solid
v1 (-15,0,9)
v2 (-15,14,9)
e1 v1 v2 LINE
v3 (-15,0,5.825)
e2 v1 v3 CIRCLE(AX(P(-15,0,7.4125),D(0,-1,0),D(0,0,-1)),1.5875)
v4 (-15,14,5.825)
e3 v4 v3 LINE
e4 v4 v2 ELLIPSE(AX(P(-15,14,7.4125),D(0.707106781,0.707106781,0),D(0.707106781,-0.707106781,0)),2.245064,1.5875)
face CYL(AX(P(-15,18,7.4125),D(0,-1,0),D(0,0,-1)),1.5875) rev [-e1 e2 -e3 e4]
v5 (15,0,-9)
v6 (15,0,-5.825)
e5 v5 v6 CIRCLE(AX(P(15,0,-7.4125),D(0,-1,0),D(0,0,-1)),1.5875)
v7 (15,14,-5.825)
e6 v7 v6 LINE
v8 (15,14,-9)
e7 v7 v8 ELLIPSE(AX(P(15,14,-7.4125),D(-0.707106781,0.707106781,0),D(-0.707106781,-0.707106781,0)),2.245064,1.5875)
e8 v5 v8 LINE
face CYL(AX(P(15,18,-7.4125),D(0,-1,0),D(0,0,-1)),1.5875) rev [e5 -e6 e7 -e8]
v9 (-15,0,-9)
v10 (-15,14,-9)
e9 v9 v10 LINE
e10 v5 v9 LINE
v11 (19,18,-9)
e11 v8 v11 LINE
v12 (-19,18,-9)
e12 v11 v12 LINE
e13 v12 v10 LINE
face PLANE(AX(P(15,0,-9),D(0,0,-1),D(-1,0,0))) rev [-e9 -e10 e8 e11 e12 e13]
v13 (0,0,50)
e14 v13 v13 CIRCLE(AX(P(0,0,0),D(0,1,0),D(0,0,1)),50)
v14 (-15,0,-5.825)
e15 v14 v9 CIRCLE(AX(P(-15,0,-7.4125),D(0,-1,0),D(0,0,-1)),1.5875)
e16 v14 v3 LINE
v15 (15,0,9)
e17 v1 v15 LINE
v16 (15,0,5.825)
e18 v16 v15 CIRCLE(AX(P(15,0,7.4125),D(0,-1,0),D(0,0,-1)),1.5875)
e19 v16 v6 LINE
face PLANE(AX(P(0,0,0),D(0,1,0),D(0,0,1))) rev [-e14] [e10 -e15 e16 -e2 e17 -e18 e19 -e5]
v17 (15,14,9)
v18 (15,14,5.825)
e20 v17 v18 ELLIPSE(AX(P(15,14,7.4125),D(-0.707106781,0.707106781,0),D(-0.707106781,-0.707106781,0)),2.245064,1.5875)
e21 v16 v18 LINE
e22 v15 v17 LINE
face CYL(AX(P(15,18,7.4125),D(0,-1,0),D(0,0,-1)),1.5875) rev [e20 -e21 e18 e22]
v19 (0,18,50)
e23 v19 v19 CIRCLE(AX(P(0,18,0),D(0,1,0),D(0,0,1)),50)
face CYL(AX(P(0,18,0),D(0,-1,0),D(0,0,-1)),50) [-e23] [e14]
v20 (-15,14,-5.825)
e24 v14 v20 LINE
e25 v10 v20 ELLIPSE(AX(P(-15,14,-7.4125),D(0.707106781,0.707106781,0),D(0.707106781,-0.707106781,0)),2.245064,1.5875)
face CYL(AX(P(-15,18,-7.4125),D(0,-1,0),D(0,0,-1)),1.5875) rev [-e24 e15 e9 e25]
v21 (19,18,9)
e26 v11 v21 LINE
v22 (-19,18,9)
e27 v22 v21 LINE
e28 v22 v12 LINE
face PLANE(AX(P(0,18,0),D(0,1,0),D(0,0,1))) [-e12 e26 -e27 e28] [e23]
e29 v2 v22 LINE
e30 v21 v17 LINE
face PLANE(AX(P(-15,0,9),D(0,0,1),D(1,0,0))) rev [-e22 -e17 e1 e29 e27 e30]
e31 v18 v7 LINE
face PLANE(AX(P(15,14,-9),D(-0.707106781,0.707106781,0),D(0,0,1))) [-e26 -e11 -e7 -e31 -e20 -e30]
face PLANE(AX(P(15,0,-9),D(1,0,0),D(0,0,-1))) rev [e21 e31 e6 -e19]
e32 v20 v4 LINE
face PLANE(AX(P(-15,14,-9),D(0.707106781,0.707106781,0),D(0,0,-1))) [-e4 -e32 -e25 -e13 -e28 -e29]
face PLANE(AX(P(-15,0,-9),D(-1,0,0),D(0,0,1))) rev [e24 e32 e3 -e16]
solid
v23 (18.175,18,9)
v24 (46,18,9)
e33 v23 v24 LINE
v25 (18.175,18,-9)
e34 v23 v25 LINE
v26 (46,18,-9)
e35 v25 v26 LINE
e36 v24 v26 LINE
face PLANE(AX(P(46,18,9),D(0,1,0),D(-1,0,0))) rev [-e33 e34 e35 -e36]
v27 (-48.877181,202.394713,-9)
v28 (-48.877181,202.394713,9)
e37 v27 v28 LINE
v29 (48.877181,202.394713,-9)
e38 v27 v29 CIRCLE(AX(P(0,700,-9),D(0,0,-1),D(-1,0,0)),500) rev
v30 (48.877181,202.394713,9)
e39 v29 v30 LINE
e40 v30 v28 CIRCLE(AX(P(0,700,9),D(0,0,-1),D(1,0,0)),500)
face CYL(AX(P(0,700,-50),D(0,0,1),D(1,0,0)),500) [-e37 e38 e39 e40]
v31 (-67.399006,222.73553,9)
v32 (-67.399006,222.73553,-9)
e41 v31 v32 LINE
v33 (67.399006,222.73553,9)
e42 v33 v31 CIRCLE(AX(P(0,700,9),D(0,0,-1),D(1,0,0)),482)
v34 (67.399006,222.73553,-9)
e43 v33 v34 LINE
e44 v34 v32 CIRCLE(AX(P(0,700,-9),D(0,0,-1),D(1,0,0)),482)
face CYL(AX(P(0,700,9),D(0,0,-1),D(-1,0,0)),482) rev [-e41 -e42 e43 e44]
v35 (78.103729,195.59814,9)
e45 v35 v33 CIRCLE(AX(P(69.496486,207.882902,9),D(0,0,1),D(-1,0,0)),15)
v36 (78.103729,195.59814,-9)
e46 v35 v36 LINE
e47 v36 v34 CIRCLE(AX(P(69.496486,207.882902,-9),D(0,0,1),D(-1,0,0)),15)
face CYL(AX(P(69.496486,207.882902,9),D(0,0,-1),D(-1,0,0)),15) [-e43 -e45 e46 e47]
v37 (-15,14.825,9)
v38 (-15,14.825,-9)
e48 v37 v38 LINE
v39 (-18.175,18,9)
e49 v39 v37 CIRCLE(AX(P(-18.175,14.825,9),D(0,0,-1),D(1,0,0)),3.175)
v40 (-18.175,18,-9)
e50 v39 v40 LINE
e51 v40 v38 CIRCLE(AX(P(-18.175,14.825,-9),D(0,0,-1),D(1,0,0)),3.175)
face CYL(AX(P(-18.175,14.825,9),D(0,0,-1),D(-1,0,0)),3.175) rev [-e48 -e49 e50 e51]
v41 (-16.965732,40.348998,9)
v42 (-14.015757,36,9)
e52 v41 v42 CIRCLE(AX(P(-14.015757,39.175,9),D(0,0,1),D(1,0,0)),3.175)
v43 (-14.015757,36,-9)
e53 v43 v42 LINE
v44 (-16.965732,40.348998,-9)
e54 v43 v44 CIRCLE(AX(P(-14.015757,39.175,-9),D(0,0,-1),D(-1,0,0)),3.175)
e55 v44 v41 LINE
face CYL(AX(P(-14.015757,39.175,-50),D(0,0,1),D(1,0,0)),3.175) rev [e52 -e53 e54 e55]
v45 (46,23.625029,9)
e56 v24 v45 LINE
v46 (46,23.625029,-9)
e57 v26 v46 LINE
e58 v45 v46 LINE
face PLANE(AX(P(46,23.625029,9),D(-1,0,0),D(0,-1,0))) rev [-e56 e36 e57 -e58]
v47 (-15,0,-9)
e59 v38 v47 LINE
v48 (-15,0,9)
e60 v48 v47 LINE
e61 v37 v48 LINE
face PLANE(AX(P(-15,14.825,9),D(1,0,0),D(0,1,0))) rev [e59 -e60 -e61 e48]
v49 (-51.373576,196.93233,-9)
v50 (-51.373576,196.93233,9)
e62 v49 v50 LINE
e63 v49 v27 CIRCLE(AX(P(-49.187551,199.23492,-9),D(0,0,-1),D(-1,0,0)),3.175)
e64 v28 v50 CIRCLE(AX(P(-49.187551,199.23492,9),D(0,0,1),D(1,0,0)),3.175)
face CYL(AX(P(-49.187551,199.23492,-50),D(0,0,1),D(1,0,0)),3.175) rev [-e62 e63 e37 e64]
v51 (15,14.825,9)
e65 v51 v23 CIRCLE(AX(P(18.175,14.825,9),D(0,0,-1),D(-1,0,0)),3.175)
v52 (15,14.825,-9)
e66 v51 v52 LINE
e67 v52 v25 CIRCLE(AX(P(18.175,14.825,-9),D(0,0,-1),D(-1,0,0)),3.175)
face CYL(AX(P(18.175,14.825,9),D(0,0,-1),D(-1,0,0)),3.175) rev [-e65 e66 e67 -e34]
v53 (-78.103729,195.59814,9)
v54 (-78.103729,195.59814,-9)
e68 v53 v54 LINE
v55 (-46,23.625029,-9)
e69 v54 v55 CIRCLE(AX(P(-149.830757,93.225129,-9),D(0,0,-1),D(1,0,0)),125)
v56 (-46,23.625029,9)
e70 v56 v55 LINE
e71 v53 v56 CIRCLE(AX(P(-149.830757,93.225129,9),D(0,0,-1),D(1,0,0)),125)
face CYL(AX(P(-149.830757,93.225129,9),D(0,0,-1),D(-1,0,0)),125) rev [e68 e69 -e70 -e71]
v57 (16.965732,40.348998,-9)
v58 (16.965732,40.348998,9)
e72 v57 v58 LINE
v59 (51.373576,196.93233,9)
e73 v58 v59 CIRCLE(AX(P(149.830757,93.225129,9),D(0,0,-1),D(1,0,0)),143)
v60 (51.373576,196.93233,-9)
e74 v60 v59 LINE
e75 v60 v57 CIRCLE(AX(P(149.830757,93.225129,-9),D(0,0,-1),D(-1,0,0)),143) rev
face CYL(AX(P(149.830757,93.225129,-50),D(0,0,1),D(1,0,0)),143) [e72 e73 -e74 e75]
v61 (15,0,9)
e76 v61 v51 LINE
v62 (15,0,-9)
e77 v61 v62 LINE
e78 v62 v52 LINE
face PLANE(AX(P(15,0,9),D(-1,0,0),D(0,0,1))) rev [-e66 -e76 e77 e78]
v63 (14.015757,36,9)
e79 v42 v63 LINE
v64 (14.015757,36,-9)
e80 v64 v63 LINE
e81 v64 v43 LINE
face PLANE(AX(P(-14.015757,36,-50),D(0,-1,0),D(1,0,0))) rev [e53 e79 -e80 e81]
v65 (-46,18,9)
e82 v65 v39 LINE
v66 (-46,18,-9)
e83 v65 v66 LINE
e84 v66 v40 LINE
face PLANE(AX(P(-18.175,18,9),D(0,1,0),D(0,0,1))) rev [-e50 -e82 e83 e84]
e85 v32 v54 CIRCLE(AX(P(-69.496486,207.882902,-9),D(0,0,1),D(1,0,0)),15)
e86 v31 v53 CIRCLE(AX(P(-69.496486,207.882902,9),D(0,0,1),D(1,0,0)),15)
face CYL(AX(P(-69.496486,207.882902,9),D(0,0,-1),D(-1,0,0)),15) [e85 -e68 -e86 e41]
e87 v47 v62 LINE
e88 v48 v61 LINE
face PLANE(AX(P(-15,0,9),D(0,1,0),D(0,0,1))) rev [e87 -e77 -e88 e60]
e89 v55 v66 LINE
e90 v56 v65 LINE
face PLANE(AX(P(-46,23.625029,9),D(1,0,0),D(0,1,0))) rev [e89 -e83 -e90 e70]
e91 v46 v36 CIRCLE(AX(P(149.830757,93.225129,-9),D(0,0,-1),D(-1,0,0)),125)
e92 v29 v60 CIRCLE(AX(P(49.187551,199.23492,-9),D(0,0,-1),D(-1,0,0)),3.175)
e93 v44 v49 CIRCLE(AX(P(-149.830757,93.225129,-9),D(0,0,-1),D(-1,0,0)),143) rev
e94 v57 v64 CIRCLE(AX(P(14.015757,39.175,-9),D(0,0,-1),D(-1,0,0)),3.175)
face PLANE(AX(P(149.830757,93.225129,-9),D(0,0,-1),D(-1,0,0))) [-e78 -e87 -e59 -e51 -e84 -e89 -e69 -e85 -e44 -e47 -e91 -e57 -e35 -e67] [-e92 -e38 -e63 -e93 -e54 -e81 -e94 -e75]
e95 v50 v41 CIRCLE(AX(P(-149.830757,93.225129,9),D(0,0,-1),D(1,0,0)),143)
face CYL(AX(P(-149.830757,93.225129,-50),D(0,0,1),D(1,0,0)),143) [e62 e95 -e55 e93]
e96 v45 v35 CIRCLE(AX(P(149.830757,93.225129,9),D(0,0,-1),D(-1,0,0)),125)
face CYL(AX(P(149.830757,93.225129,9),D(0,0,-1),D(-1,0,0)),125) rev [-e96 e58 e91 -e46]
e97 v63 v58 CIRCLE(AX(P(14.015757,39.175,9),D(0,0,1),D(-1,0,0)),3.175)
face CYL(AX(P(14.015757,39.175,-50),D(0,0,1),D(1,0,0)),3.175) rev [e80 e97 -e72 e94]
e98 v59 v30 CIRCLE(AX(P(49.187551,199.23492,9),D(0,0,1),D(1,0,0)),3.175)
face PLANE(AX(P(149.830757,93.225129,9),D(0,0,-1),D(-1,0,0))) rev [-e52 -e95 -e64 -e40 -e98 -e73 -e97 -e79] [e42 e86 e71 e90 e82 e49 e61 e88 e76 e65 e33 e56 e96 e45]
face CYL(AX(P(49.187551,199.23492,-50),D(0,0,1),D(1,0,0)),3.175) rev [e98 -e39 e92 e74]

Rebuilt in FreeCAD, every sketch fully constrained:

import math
import FreeCAD as App
import Part
import Sketcher

V = App.Vector


def edges_at(feature, points):
    """Names of the edges that pass closest to the given points."""
    edges = feature.Shape.Edges
    near = lambda p: min(range(len(edges)), key=lambda i: edges[i].distToShape(Part.Vertex(*p))[0])
    return sorted({f"Edge{near(p) + 1}" for p in points})

doc = App.newDocument("Part")
params = doc.addObject("Spreadsheet::Sheet", "Params")
for row, (alias, value) in enumerate([
    ("sketch1_diameter", "100 mm"),
    ("pad1_length", "18 mm"),
    ("sketch2_width", "30 mm"),
    ("sketch2_height", "18 mm"),
    ("chamfer_size", "4 mm"),
    ("pocket2_length", "18 mm"),
    ("sketch4_radius", "125 mm"),
    ("sketch4_radius2", "15 mm"),
    ("sketch4_radius3", "482 mm"),
    ("sketch4_width", "30 mm"),
    ("pad2_length", "18 mm"),
    ("sketch5_radius", "143 mm"),
    ("sketch5_radius2", "500 mm"),
], start=1):
    params.set(f"A{row}", alias)
    params.set(f"B{row}", "=" + value)
    params.setAlias(f"B{row}", alias)

body = doc.addObject("PartDesign::Body", "Body")

# Sketch on XZ plane
sketch1 = body.newObject("Sketcher::SketchObject", "Sketch")
sketch1.AttachmentSupport = (doc.getObject("XZ_Plane"), [""])
sketch1.MapMode = "FlatFace"
sketch1.addGeometry(Part.Circle(V(0, 0, 0), V(0, 0, 1), 50), False)
sketch1.addConstraint(Sketcher.Constraint("Coincident", 0, 3, -1, 1))
sketch1.addConstraint(Sketcher.Constraint("Diameter", 0, 100.0))
sketch1.setExpression("Constraints[1]", "Params.sketch1_diameter")
pad1 = body.newObject("PartDesign::Pad", "Pad")
pad1.Profile = sketch1
pad1.setExpression("Length", "Params.pad1_length")
pad1.Reversed = True

# Sketch on XZ plane
sketch2 = body.newObject("Sketcher::SketchObject", "Sketch001")
sketch2.AttachmentSupport = (doc.getObject("XZ_Plane"), [""])
sketch2.MapMode = "FlatFace"
sketch2.AttachmentOffset = App.Placement(V(0, 0, -18), App.Rotation())
sketch2.addGeometry(Part.LineSegment(V(-15, -9, 0), V(-15, 9, 0)), False)
sketch2.addGeometry(Part.LineSegment(V(-15, 9, 0), V(15, 9, 0)), False)
sketch2.addGeometry(Part.LineSegment(V(15, 9, 0), V(15, -9, 0)), False)
sketch2.addGeometry(Part.LineSegment(V(15, -9, 0), V(-15, -9, 0)), False)
sketch2.addConstraint(Sketcher.Constraint("Coincident", 0, 2, 1, 1))
sketch2.addConstraint(Sketcher.Constraint("Coincident", 1, 2, 2, 1))
sketch2.addConstraint(Sketcher.Constraint("Coincident", 2, 2, 3, 1))
sketch2.addConstraint(Sketcher.Constraint("Coincident", 3, 2, 0, 1))
sketch2.addConstraint(Sketcher.Constraint("Vertical", 0))
sketch2.addConstraint(Sketcher.Constraint("Horizontal", 1))
sketch2.addConstraint(Sketcher.Constraint("Vertical", 2))
sketch2.addConstraint(Sketcher.Constraint("Horizontal", 3))
sketch2.addConstraint(Sketcher.Constraint("Symmetric", 0, 2, 2, 2, -1, 1))
sketch2.addConstraint(Sketcher.Constraint("DistanceX", 1, 1, 1, 2, 30.0))
sketch2.addConstraint(Sketcher.Constraint("DistanceY", 0, 1, 0, 2, 18.0))
sketch2.setExpression("Constraints[9]", "Params.sketch2_width")
sketch2.setExpression("Constraints[10]", "Params.sketch2_height")
pocket1 = body.newObject("PartDesign::Pocket", "Pocket")
pocket1.Profile = sketch2
pocket1.Type = "ThroughAll"
pocket1.Midplane = True
doc.recompute()

chamfer = body.newObject("PartDesign::Chamfer", "Chamfer")
chamfer.Base = (pocket1, edges_at(pocket1, [(15, 18, 0), (-15, 18, 0)]))
chamfer.setExpression("Size", "Params.chamfer_size")

# Sketch on XZ plane
sketch3 = body.newObject("Sketcher::SketchObject", "Sketch002")
sketch3.AttachmentSupport = (doc.getObject("XZ_Plane"), [""])
sketch3.MapMode = "FlatFace"
sketch3.addGeometry(Part.Circle(V(-15, 7.4, 0), V(0, 0, 1), 1.6), False)
sketch3.addGeometry(Part.Circle(V(-15, -7.4, 0), V(0, 0, 1), 1.6), False)
sketch3.addGeometry(Part.Circle(V(15, 7.4, 0), V(0, 0, 1), 1.6), False)
sketch3.addGeometry(Part.Circle(V(15, -7.4, 0), V(0, 0, 1), 1.6), False)
sketch3.addConstraint(Sketcher.Constraint("Equal", 0, 1))
sketch3.addConstraint(Sketcher.Constraint("Equal", 1, 2))
sketch3.addConstraint(Sketcher.Constraint("Equal", 2, 3))
sketch3.addConstraint(Sketcher.Constraint("Symmetric", 1, 3, 2, 3, -1, 1))
sketch3.addConstraint(Sketcher.Constraint("Symmetric", 0, 3, 3, 3, -1, 1))
sketch3.addConstraint(Sketcher.Constraint("Symmetric", 0, 3, 2, 3, -2))
sketch3.addConstraint(Sketcher.Constraint("Diameter", 0, 3.175))
sketch3.addConstraint(Sketcher.Constraint("DistanceX", 0, 3, -1, 1, 15.0))
sketch3.addConstraint(Sketcher.Constraint("DistanceY", 1, 3, 0, 3, 14.825))
pocket2 = body.newObject("PartDesign::Pocket", "Pocket001")
pocket2.Profile = sketch3
pocket2.setExpression("Length", "Params.pocket2_length")
body2 = doc.addObject("PartDesign::Body", "Body001")

# Sketch on XY plane
sketch4 = body2.newObject("Sketcher::SketchObject", "Sketch003")
sketch4.AttachmentSupport = (doc.getObject("XY_Plane001"), [""])
sketch4.MapMode = "FlatFace"
sketch4.addGeometry(Part.LineSegment(V(-15, 14.8, 0), V(-15, 0, 0)), False)
sketch4.addGeometry(Part.LineSegment(V(-15, 0, 0), V(15, 0, 0)), False)
sketch4.addGeometry(Part.LineSegment(V(15, 0, 0), V(15, 14.8, 0)), False)
sketch4.addGeometry(Part.ArcOfCircle(Part.Circle(V(18.2, 14.8, 0), V(0, 0, 1), 3.2), math.radians(90), math.radians(180)), False)
sketch4.addGeometry(Part.LineSegment(V(18.2, 18, 0), V(46, 18, 0)), False)
sketch4.addGeometry(Part.LineSegment(V(46, 18, 0), V(46, 23.6, 0)), False)
sketch4.addGeometry(Part.ArcOfCircle(Part.Circle(V(149.8, 93.2, 0), V(0, 0, 1), 125), math.radians(125), math.radians(214)), False)
sketch4.addGeometry(Part.ArcOfCircle(Part.Circle(V(69.5, 207.9, 0), V(0, 0, 1), 15), math.radians(-55), math.radians(98)), False)
sketch4.addGeometry(Part.ArcOfCircle(Part.Circle(V(0, 700, 0), V(0, 0, 1), 482), math.radians(-98.04), math.radians(-81.96)), False)
sketch4.addGeometry(Part.ArcOfCircle(Part.Circle(V(-69.5, 207.9, 0), V(0, 0, 1), 15), math.radians(82), math.radians(235)), False)
sketch4.addGeometry(Part.ArcOfCircle(Part.Circle(V(-149.8, 93.2, 0), V(0, 0, 1), 125), math.radians(-34), math.radians(55)), False)
sketch4.addGeometry(Part.LineSegment(V(-46, 23.6, 0), V(-46, 18, 0)), False)
sketch4.addGeometry(Part.LineSegment(V(-46, 18, 0), V(-18.2, 18, 0)), False)
sketch4.addGeometry(Part.ArcOfCircle(Part.Circle(V(-18.2, 14.8, 0), V(0, 0, 1), 3.2), math.radians(0), math.radians(90)), False)
sketch4.addConstraint(Sketcher.Constraint("Coincident", 0, 2, 1, 1))
sketch4.addConstraint(Sketcher.Constraint("Coincident", 1, 2, 2, 1))
sketch4.addConstraint(Sketcher.Constraint("Tangent", 2, 2, 3, 2))
sketch4.addConstraint(Sketcher.Constraint("Tangent", 3, 1, 4, 1))
sketch4.addConstraint(Sketcher.Constraint("Coincident", 4, 2, 5, 1))
sketch4.addConstraint(Sketcher.Constraint("Coincident", 5, 2, 6, 2))
sketch4.addConstraint(Sketcher.Constraint("Tangent", 6, 1, 7, 1))
sketch4.addConstraint(Sketcher.Constraint("Tangent", 7, 2, 8, 2))
sketch4.addConstraint(Sketcher.Constraint("Tangent", 8, 1, 9, 1))
sketch4.addConstraint(Sketcher.Constraint("Tangent", 9, 2, 10, 2))
sketch4.addConstraint(Sketcher.Constraint("Coincident", 10, 1, 11, 1))
sketch4.addConstraint(Sketcher.Constraint("Coincident", 11, 2, 12, 1))
sketch4.addConstraint(Sketcher.Constraint("Tangent", 12, 2, 13, 2))
sketch4.addConstraint(Sketcher.Constraint("Tangent", 13, 1, 0, 1))
sketch4.addConstraint(Sketcher.Constraint("Vertical", 0))
sketch4.addConstraint(Sketcher.Constraint("Horizontal", 1))
sketch4.addConstraint(Sketcher.Constraint("Vertical", 2))
sketch4.addConstraint(Sketcher.Constraint("Horizontal", 4))
sketch4.addConstraint(Sketcher.Constraint("Vertical", 5))
sketch4.addConstraint(Sketcher.Constraint("Vertical", 11))
sketch4.addConstraint(Sketcher.Constraint("Horizontal", 12))
sketch4.addConstraint(Sketcher.Constraint("Equal", 7, 9))
sketch4.addConstraint(Sketcher.Constraint("Equal", 6, 10))
sketch4.addConstraint(Sketcher.Constraint("Equal", 3, 13))
sketch4.addConstraint(Sketcher.Constraint("Symmetric", 0, 2, 1, 2, -1, 1))
sketch4.addConstraint(Sketcher.Constraint("Symmetric", 7, 3, 9, 3, -2))
sketch4.addConstraint(Sketcher.Constraint("Symmetric", 5, 2, 10, 1, -2))
sketch4.addConstraint(Sketcher.Constraint("Horizontal", 3, 3, 13, 3))
sketch4.addConstraint(Sketcher.Constraint("Radius", 6, 125.0))
sketch4.addConstraint(Sketcher.Constraint("Radius", 7, 15.0))
sketch4.addConstraint(Sketcher.Constraint("Radius", 8, 482.0))
sketch4.addConstraint(Sketcher.Constraint("DistanceX", 1, 1, 1, 2, 30.0))
sketch4.addConstraint(Sketcher.Constraint("DistanceY", -1, 1, 8, 3, 700.0))
sketch4.addConstraint(Sketcher.Constraint("DistanceY", -1, 1, 3, 1, 18.0))
sketch4.addConstraint(Sketcher.Constraint("DistanceX", -1, 1, 4, 2, 46.0))
sketch4.addConstraint(Sketcher.Constraint("Radius", 3, 3.175))
sketch4.addConstraint(Sketcher.Constraint("DistanceY", 5, 1, 5, 2, 5.625029))
sketch4.addConstraint(Sketcher.Constraint("DistanceY", -1, 1, 7, 3, 207.882902))
sketch4.setExpression("Constraints[28]", "Params.sketch4_radius")
sketch4.setExpression("Constraints[29]", "Params.sketch4_radius2")
sketch4.setExpression("Constraints[30]", "Params.sketch4_radius3")
sketch4.setExpression("Constraints[31]", "Params.sketch4_width")
pad2 = body2.newObject("PartDesign::Pad", "Pad001")
pad2.Profile = sketch4
pad2.setExpression("Length", "Params.pad2_length")
pad2.Midplane = True

# Sketch on XY plane
sketch5 = body2.newObject("Sketcher::SketchObject", "Sketch004")
sketch5.AttachmentSupport = (doc.getObject("XY_Plane001"), [""])
sketch5.MapMode = "FlatFace"
sketch5.AttachmentOffset = App.Placement(V(0, 0, 9), App.Rotation())
sketch5.addGeometry(Part.LineSegment(V(-14, 36, 0), V(14, 36, 0)), False)
sketch5.addGeometry(Part.ArcOfCircle(Part.Circle(V(14, 39.2, 0), V(0, 0, 1), 3.2), math.radians(-90), math.radians(22)), False)
sketch5.addGeometry(Part.ArcOfCircle(Part.Circle(V(149.8, 93.2, 0), V(0, 0, 1), 143), math.radians(134), math.radians(202)), False)
sketch5.addGeometry(Part.ArcOfCircle(Part.Circle(V(49.2, 199.2, 0), V(0, 0, 1), 3.2), math.radians(-46), math.radians(96)), False)
sketch5.addGeometry(Part.ArcOfCircle(Part.Circle(V(0, 700, 0), V(0, 0, 1), 500), math.radians(-95.61), math.radians(-84.39)), False)
sketch5.addGeometry(Part.ArcOfCircle(Part.Circle(V(-49.2, 199.2, 0), V(0, 0, 1), 3.2), math.radians(84), math.radians(226)), False)
sketch5.addGeometry(Part.ArcOfCircle(Part.Circle(V(-149.8, 93.2, 0), V(0, 0, 1), 143), math.radians(-22), math.radians(46)), False)
sketch5.addGeometry(Part.ArcOfCircle(Part.Circle(V(-14, 39.2, 0), V(0, 0, 1), 3.2), math.radians(158), math.radians(270)), False)
sketch5.addConstraint(Sketcher.Constraint("Tangent", 0, 2, 1, 1))
sketch5.addConstraint(Sketcher.Constraint("Tangent", 1, 2, 2, 2))
sketch5.addConstraint(Sketcher.Constraint("Tangent", 2, 1, 3, 1))
sketch5.addConstraint(Sketcher.Constraint("Tangent", 3, 2, 4, 2))
sketch5.addConstraint(Sketcher.Constraint("Tangent", 4, 1, 5, 1))
sketch5.addConstraint(Sketcher.Constraint("Tangent", 5, 2, 6, 2))
sketch5.addConstraint(Sketcher.Constraint("Tangent", 6, 1, 7, 1))
sketch5.addConstraint(Sketcher.Constraint("Tangent", 7, 2, 0, 1))
sketch5.addConstraint(Sketcher.Constraint("Horizontal", 0))
sketch5.addConstraint(Sketcher.Constraint("Equal", 1, 3))
sketch5.addConstraint(Sketcher.Constraint("Equal", 3, 5))
sketch5.addConstraint(Sketcher.Constraint("Equal", 2, 6))
sketch5.addConstraint(Sketcher.Constraint("Equal", 5, 7))
sketch5.addConstraint(Sketcher.Constraint("Symmetric", 3, 3, 5, 3, -2))
sketch5.addConstraint(Sketcher.Constraint("Horizontal", 2, 3, 6, 3))
sketch5.addConstraint(Sketcher.Constraint("Radius", 2, 143.0))
sketch5.addConstraint(Sketcher.Constraint("Radius", 4, 500.0))
sketch5.addConstraint(Sketcher.Constraint("DistanceY", -1, 1, 4, 3, 700.0))
sketch5.addConstraint(Sketcher.Constraint("DistanceY", -1, 1, 0, 2, 36.0))
sketch5.addConstraint(Sketcher.Constraint("Radius", 1, 3.175))
sketch5.addConstraint(Sketcher.Constraint("DistanceY", -1, 1, 1, 2, 40.348998))
sketch5.addConstraint(Sketcher.Constraint("DistanceX", 0, 1, 0, 2, 28.031514))
sketch5.setExpression("Constraints[15]", "Params.sketch5_radius")
sketch5.setExpression("Constraints[16]", "Params.sketch5_radius2")
pocket3 = body2.newObject("PartDesign::Pocket", "Pocket002")
pocket3.Profile = sketch5
pocket3.Type = "ThroughAll"

doc.recompute()
